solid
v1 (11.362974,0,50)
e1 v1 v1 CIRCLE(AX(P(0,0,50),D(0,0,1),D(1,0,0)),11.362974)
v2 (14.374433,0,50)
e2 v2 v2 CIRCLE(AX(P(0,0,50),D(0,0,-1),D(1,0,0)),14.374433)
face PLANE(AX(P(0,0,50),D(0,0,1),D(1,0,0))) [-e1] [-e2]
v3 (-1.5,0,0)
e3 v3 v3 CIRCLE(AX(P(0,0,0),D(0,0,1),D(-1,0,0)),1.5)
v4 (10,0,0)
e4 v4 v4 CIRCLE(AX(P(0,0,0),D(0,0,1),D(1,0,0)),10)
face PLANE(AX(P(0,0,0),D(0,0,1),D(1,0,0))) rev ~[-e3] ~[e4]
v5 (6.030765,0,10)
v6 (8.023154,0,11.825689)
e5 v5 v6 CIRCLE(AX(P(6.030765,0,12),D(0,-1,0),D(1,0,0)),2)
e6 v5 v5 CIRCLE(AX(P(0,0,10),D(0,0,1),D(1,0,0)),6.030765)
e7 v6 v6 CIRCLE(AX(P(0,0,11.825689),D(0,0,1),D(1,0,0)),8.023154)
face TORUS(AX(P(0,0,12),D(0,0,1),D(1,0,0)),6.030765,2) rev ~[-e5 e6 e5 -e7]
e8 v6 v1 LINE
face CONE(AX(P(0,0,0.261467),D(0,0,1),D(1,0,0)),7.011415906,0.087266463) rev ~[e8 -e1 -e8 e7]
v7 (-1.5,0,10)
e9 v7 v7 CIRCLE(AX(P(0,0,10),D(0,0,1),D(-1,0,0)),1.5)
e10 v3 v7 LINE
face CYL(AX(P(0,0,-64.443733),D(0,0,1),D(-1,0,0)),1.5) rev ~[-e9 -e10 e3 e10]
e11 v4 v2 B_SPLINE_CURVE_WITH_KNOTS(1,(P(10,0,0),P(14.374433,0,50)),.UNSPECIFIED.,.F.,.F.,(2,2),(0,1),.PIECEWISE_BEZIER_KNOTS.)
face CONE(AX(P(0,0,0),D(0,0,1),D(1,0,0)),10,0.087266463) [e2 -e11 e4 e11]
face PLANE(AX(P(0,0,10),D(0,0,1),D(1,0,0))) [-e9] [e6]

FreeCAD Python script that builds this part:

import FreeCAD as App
import Part
import Sketcher

V = App.Vector
Q = App.Units.Quantity


def edges_at(feature, points):
    """Names of the edges that pass closest to the given points."""
    edges = feature.Shape.Edges
    near = lambda p: min(range(len(edges)), key=lambda i: edges[i].distToShape(Part.Vertex(*p))[0])
    return sorted({f"Edge{near(p) + 1}" for p in points})


def faces_at(feature, points):
    """Names of the faces that lie closest to the given points."""
    faces = feature.Shape.Faces
    near = lambda p: min(range(len(faces)), key=lambda i: faces[i].distToShape(Part.Vertex(*p))[0])
    return sorted({f"Face{near(p) + 1}" for p in points})

doc = App.newDocument("Part")
body = doc.addObject("PartDesign::Body", "Body")

sketch1 = body.newObject("Sketcher::SketchObject", "Sketch")
sketch1.AttachmentSupport = (doc.getObject("XY_Plane"), [""])
sketch1.MapMode = "FlatFace"
sketch1.addGeometry(Part.Circle(V(0, 0, 0), V(0, 0, 1), 10), False)
sketch1.addConstraint([
    Sketcher.Constraint("Coincident", 0, 3, -1, 1),
    Sketcher.Constraint("Diameter", 0, Q("20 mm")),
])
pad1 = body.newObject("PartDesign::Pad", "Pad")
pad1.Profile = sketch1
pad1.Length = 50
pad1.TaperAngle = 5
doc.recompute()

thickness = body.newObject("PartDesign::Thickness", "Thickness")
thickness.Base = (pad1, faces_at(pad1, [(0, 0, 50)]))
thickness.Value = 3
thickness.Reversed = True
thickness.Join = "Intersection"

sketch2 = body.newObject("Sketcher::SketchObject", "Sketch001")
sketch2.AttachmentSupport = (doc.getObject("XY_Plane"), [""])
sketch2.MapMode = "FlatFace"
sketch2.addGeometry(Part.Circle(V(0, 0, 0), V(0, 0, 1), 10), False)
sketch2.addConstraint([
    Sketcher.Constraint("Coincident", 0, 3, -1, 1),
    Sketcher.Constraint("Diameter", 0, Q("20 mm")),
])
pad2 = body.newObject("PartDesign::Pad", "Pad001")
pad2.Profile = sketch2
pad2.Length = 10

sketch3 = body.newObject("Sketcher::SketchObject", "Sketch002")
sketch3.AttachmentSupport = (doc.getObject("XY_Plane"), [""])
sketch3.MapMode = "FlatFace"
sketch3.addGeometry(Part.Circle(V(0, 0, 0), V(0, 0, 1), 1.5), False)
sketch3.addConstraint([
    Sketcher.Constraint("Coincident", 0, 3, -1, 1),
    Sketcher.Constraint("Diameter", 0, Q("3 mm")),
])
doc.recompute()
hole = body.newObject("PartDesign::Hole", "Hole")
hole.Profile = sketch3
hole.ThreadType = "None"
hole.Diameter = 3
hole.DepthType = "ThroughAll"
hole.Reversed = True
doc.recompute()

fillet = body.newObject("PartDesign::Fillet", "Fillet")
fillet.Base = (hole, edges_at(hole, [(-7.863, 0, 10)]))
fillet.Radius = 2

doc.recompute()
